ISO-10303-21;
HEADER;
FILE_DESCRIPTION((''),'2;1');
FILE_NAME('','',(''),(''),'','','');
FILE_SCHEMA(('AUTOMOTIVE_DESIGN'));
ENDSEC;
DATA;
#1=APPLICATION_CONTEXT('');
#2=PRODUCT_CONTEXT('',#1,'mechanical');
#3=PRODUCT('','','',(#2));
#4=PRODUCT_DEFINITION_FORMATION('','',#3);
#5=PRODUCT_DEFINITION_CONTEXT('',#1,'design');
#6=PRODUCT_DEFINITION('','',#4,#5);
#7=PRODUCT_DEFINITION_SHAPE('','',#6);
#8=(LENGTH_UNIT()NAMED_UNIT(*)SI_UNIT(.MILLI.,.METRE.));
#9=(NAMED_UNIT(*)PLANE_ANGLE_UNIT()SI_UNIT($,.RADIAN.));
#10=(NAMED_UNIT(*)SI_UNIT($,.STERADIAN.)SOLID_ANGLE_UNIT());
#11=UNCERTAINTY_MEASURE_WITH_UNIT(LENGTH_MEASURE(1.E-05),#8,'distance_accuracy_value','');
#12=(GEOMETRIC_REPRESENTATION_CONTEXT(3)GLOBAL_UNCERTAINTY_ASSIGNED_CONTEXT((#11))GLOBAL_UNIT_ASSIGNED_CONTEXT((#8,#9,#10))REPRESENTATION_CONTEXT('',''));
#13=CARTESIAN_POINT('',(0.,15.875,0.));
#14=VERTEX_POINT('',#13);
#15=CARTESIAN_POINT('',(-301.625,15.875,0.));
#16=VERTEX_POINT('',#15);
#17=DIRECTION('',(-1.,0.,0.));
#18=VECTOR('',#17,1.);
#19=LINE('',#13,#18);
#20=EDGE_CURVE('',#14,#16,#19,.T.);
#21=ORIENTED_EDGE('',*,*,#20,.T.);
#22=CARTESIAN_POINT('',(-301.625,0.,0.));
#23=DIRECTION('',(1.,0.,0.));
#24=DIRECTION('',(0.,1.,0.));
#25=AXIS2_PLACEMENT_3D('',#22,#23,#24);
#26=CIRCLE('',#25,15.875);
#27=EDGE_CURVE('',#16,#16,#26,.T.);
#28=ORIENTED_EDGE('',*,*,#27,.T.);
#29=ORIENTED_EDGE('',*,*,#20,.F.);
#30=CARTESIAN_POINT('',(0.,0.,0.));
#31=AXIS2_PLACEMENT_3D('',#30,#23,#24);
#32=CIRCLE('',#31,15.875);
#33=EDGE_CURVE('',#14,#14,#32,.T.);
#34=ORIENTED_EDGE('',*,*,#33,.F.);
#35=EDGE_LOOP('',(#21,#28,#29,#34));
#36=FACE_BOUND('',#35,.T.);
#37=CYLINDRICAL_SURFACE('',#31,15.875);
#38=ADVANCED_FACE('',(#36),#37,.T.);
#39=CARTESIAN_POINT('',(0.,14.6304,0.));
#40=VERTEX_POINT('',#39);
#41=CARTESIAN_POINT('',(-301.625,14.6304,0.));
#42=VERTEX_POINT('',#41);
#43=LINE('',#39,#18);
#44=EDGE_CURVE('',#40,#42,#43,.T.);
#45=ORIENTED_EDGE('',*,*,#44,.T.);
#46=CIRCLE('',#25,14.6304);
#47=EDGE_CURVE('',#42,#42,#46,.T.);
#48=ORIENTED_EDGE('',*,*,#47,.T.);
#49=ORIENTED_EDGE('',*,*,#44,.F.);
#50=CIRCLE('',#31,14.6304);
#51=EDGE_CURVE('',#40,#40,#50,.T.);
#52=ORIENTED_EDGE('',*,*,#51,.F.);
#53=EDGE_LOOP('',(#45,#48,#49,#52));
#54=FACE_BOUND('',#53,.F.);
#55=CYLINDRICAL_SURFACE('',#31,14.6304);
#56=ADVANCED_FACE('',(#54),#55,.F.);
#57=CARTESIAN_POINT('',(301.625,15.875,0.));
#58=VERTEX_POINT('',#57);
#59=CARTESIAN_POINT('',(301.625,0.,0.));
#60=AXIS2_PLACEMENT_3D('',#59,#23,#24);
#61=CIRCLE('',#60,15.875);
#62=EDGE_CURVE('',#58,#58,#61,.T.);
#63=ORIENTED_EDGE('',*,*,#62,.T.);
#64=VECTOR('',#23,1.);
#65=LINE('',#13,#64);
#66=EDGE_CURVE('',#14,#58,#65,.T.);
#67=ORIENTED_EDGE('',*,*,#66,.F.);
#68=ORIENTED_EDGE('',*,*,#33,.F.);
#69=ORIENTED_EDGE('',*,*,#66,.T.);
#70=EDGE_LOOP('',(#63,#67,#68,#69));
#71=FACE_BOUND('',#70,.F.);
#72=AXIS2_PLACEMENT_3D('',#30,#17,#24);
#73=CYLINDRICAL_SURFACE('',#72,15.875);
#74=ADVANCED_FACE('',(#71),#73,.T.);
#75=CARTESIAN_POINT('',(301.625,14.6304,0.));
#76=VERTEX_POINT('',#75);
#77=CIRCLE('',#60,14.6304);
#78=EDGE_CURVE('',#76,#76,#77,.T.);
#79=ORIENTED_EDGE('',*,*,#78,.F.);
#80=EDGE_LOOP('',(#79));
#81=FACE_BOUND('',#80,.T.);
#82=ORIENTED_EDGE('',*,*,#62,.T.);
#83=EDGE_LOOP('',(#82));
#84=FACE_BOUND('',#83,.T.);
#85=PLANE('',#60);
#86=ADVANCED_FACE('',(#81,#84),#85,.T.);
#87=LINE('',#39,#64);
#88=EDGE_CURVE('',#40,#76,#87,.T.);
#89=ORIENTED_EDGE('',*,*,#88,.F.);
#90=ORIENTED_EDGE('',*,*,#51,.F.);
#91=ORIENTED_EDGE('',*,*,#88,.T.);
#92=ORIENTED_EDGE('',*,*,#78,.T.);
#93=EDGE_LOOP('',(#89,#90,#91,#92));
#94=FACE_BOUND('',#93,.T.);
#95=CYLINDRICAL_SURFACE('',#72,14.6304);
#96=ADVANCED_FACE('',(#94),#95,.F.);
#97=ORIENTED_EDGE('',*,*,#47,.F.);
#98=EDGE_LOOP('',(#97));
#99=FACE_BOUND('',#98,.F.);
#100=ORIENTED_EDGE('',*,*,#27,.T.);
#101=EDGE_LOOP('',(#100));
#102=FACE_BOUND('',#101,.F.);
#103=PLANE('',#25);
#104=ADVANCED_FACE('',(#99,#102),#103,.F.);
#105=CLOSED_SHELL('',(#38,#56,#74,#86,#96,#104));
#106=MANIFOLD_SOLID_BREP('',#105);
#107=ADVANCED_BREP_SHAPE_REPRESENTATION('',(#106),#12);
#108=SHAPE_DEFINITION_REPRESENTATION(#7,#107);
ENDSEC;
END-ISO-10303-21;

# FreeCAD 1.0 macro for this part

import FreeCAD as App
import Part
import Sketcher
Q = App.Units.Quantity

doc = App.newDocument("Part")
params = doc.addObject("Spreadsheet::Sheet", "Params")
for row, (alias, value) in enumerate([
    ("sketch1_diameter", "1.25 in"),
    ("sketch1_diameter2", "1.152 in"),
    ("pad1_length", "23.75 in"),
], start=1):
    params.set(f"A{row}", alias)
    params.set(f"B{row}", "=" + value)
    params.setAlias(f"B{row}", alias)

body = doc.addObject("PartDesign::Body", "Body")

sketch1 = body.newObject("Sketcher::SketchObject", "Sketch")
sketch1.AttachmentSupport = (doc.getObject("YZ_Plane"), [""])
sketch1.MapMode = "FlatFace"
sketch1.addGeometry([
    Part.Circle(App.Vector(0, 0, 0), App.Vector(0, 0, 1), 16),
    Part.Circle(App.Vector(0, 0, 0), App.Vector(0, 0, 1), 15),
], False)
sketch1.addConstraint([
    Sketcher.Constraint("Coincident", 0, 3, -1, 1),
    Sketcher.Constraint("Coincident", 1, 3, -1, 1),
    Sketcher.Constraint("Diameter", 0, Q("1.25 in")),
    Sketcher.Constraint("Diameter", 1, Q("1.152 in")),
])
sketch1.setExpression("Constraints[2]", "Params.sketch1_diameter")
sketch1.setExpression("Constraints[3]", "Params.sketch1_diameter2")
pad1 = body.newObject("PartDesign::Pad", "Pad")
pad1.Profile = sketch1
pad1.setExpression("Length", "Params.pad1_length")
pad1.Midplane = True

doc.recompute()
